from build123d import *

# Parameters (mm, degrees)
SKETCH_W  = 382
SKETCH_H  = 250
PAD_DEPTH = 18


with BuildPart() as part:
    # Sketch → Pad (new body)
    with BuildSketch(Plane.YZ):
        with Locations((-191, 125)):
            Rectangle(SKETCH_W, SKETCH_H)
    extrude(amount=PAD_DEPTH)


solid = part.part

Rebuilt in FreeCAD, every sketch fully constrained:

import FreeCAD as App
import Part
import Sketcher

V = App.Vector
Q = App.Units.Quantity

doc = App.newDocument("Part")
body = doc.addObject("PartDesign::Body", "Body")

# Sketch on YZ plane
sketch1 = body.newObject("Sketcher::SketchObject", "Sketch")
sketch1.AttachmentSupport = (doc.getObject("YZ_Plane"), [""])
sketch1.MapMode = "FlatFace"
sketch1.addGeometry([
    Part.LineSegment(V(-382, 250, 0), V(-382, 0, 0)),
    Part.LineSegment(V(-382, 0, 0), V(0, 0, 0)),
    Part.LineSegment(V(0, 0, 0), V(0, 250, 0)),
    Part.LineSegment(V(0, 250, 0), V(-382, 250, 0)),
], False)
sketch1.addConstraint([
    Sketcher.Constraint("Coincident", 0, 2, 1, 1),
    Sketcher.Constraint("Coincident", 1, 2, 2, 1),
    Sketcher.Constraint("Coincident", 2, 2, 3, 1),
    Sketcher.Constraint("Coincident", 3, 2, 0, 1),
    Sketcher.Constraint("Vertical", 0),
    Sketcher.Constraint("Horizontal", 1),
    Sketcher.Constraint("Vertical", 2),
    Sketcher.Constraint("Horizontal", 3),
    Sketcher.Constraint("Coincident", 1, 2, -1, 1),
    Sketcher.Constraint("DistanceX", 1, 1, 1, 2, Q("382 mm")),
    Sketcher.Constraint("DistanceY", 0, 2, 0, 1, Q("250 mm")),
])
pad1 = body.newObject("PartDesign::Pad", "Pad")
pad1.Profile = sketch1
pad1.Length = 18

doc.recompute()
